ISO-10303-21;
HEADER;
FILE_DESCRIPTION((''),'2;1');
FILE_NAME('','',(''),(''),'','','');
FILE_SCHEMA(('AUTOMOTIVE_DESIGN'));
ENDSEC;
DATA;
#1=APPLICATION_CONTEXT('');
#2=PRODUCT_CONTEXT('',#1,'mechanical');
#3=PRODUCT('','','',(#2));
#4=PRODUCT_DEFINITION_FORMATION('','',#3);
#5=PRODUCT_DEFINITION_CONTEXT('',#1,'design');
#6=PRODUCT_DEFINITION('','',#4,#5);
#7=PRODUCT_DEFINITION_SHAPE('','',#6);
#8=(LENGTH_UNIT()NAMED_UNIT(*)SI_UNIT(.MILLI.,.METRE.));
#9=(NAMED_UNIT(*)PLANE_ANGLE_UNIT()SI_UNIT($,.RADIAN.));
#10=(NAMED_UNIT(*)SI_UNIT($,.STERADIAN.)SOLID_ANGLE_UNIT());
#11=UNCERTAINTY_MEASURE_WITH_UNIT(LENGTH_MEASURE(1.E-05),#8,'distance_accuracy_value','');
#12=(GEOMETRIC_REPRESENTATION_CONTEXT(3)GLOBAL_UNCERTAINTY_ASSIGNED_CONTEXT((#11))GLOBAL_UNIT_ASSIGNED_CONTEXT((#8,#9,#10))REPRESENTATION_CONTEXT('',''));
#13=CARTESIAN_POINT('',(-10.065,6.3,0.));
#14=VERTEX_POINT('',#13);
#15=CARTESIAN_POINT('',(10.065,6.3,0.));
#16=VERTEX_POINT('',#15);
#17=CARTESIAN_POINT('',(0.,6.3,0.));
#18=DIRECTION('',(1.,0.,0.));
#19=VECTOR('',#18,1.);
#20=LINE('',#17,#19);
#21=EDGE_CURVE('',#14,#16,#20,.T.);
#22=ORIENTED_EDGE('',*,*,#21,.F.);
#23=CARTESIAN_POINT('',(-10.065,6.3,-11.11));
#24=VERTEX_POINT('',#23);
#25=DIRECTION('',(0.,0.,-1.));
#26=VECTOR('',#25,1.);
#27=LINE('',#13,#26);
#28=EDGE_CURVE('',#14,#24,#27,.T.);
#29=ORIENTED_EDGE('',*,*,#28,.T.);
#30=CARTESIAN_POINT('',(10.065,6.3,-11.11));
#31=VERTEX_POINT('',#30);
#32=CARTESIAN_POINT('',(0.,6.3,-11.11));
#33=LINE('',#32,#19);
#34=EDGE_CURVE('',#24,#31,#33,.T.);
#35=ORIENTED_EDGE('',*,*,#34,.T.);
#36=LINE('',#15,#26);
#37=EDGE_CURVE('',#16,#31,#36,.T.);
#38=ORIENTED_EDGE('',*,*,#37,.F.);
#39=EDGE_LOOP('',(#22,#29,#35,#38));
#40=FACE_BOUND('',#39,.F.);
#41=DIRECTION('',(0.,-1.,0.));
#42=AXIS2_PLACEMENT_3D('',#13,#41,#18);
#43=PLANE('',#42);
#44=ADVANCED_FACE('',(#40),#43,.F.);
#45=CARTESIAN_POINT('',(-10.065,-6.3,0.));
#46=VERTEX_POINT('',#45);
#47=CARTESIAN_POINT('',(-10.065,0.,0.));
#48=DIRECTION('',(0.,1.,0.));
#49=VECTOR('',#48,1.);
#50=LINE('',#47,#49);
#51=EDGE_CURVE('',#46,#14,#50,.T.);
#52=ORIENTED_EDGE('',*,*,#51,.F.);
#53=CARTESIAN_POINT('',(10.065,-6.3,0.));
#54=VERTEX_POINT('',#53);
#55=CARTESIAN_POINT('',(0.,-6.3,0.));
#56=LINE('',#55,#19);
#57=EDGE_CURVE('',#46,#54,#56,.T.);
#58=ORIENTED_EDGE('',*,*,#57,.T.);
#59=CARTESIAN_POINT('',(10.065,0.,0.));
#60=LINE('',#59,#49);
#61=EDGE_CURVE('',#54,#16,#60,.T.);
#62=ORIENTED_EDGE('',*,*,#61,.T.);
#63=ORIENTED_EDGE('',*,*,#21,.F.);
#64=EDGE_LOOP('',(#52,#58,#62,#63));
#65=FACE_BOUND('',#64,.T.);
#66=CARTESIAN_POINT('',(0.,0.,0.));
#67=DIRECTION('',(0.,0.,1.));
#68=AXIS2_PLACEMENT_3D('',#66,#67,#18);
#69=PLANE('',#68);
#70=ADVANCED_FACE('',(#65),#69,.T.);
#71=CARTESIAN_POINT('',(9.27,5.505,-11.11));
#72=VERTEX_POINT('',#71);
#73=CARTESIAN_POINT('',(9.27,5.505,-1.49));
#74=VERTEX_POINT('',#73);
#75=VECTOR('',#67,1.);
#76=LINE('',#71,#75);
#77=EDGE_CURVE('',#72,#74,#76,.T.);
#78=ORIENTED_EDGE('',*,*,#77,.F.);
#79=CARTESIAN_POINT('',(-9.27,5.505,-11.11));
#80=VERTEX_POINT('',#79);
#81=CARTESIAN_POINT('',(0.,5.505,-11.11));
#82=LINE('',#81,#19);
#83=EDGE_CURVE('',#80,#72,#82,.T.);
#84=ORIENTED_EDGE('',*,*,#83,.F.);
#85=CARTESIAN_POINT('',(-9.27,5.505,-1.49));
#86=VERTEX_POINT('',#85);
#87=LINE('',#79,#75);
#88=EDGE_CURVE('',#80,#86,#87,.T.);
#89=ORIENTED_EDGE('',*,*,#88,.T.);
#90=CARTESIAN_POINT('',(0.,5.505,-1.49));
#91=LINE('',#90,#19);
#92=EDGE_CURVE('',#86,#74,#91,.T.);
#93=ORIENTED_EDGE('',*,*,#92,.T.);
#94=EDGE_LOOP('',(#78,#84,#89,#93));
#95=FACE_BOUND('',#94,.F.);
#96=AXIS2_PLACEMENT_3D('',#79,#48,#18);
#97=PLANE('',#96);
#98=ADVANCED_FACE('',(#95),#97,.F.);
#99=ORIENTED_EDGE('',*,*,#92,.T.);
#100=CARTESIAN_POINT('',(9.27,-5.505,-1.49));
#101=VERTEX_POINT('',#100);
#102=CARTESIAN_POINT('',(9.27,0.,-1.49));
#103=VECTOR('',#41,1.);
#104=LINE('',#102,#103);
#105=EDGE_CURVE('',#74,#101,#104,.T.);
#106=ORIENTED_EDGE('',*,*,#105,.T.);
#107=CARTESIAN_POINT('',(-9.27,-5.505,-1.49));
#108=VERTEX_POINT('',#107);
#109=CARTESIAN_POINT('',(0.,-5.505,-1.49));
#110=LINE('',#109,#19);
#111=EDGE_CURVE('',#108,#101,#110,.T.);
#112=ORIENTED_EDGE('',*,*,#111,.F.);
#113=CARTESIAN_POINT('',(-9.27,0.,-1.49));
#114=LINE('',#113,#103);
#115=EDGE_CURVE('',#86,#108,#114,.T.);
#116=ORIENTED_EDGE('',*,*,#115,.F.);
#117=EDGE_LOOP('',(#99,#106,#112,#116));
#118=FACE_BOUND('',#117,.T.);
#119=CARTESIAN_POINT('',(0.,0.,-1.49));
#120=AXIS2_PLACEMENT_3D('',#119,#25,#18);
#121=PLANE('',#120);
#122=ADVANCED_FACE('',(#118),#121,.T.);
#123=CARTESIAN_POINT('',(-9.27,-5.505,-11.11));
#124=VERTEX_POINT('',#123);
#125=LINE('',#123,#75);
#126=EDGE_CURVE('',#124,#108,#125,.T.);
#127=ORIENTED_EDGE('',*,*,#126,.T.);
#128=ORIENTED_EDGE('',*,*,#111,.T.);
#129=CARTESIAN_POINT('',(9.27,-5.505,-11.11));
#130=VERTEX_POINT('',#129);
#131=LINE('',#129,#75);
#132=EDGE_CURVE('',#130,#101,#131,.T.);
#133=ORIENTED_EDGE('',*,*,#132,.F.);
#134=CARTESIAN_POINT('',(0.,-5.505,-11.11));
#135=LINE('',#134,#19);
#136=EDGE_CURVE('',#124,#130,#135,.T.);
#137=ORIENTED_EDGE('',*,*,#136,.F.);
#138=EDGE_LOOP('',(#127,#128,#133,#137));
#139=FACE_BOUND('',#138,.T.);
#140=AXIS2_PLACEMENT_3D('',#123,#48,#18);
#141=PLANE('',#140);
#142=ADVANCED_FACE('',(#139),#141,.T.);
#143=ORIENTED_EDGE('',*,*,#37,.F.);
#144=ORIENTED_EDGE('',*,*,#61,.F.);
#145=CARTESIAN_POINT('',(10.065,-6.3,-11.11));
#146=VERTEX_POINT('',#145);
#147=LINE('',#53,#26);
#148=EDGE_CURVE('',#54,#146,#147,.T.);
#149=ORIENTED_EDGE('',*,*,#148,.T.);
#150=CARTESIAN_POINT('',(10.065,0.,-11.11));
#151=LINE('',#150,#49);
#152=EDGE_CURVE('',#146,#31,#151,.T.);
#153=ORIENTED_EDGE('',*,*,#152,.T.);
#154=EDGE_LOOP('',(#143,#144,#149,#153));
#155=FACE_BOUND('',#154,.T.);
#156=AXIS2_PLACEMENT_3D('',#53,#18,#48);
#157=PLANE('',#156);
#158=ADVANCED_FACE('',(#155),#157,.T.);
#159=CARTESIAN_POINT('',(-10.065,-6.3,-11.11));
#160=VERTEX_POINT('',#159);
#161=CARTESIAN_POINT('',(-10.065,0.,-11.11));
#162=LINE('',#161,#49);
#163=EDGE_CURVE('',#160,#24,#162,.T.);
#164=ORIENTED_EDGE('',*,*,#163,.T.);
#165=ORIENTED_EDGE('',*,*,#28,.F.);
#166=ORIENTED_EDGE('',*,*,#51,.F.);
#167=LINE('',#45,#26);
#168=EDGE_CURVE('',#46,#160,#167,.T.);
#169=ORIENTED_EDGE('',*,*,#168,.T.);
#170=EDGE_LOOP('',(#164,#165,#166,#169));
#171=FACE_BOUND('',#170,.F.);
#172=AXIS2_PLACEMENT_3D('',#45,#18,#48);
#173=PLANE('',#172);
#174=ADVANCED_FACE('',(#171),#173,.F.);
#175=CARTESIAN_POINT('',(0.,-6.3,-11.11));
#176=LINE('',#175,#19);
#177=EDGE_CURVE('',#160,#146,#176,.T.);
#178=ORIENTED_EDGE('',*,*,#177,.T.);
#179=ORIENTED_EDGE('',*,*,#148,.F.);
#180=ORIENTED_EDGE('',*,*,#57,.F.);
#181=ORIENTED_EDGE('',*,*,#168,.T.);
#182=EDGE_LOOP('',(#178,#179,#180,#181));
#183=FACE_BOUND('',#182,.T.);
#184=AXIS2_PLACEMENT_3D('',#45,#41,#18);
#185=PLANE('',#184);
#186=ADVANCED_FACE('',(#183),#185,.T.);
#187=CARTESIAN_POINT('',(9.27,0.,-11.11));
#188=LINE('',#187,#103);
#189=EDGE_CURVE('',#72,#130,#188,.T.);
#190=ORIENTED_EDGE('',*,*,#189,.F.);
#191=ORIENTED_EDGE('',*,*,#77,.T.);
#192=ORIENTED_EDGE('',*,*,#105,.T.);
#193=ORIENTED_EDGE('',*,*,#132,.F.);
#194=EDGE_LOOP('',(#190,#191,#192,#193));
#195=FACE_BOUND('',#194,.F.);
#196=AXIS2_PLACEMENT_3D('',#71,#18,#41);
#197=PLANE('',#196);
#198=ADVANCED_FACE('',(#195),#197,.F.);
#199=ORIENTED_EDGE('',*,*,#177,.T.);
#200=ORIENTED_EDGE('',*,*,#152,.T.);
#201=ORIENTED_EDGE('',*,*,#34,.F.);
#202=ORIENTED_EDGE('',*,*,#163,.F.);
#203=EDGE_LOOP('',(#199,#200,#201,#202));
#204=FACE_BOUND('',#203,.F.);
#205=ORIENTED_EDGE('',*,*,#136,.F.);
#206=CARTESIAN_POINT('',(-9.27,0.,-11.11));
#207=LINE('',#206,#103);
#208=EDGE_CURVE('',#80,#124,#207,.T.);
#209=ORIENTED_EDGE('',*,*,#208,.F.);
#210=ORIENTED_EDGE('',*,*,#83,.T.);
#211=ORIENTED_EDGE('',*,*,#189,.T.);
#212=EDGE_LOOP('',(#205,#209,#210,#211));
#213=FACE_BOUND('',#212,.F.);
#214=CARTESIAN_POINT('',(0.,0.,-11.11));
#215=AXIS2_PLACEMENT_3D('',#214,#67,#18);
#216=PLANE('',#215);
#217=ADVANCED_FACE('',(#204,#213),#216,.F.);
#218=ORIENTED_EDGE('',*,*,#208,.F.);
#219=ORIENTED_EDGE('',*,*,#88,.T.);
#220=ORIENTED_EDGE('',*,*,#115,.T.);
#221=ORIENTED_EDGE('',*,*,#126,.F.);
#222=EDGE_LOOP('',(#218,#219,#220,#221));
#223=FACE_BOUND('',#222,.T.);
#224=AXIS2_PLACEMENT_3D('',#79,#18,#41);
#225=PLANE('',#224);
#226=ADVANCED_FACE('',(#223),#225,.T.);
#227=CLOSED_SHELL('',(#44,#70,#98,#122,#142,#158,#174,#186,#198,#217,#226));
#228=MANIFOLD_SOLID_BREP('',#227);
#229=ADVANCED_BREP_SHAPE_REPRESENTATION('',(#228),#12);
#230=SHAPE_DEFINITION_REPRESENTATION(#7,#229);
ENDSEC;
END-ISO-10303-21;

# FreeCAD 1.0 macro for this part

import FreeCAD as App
import Part
import Sketcher
from FreeCAD import Vector
Q = App.Units.Quantity


def add_polygon(sketch, points):
    """Adds a closed chain of lines whose ends are joined by coincident constraints."""
    first, n = sketch.GeometryCount, len(points)
    for a, b in zip(points, points[1:] + points[:1]):
        sketch.addGeometry(Part.LineSegment(App.Vector(*a, 0), App.Vector(*b, 0)), False)
    for i in range(n):
        sketch.addConstraint(Sketcher.Constraint("Coincident", first + i, 2, first + (i + 1) % n, 1))

doc = App.newDocument("Part")
body = doc.addObject("PartDesign::Body", "Body")

sketch1 = doc.addObject("Sketcher::SketchObject", "Sketch")
body.addObject(sketch1)
sketch1.AttachmentSupport = (doc.XY_Plane, [""])
sketch1.MapMode = "FlatFace"
add_polygon(sketch1, [(-10, 6), (-10, -6), (10, -6), (10, 6)])
sketch1.addConstraint([
    Sketcher.Constraint("Vertical", 0),
    Sketcher.Constraint("Horizontal", 1),
    Sketcher.Constraint("Vertical", 2),
    Sketcher.Constraint("Horizontal", 3),
    Sketcher.Constraint("Symmetric", 0, 2, 2, 2, -1, 1),
    Sketcher.Constraint("DistanceY", 0, 2, 0, 1, Q("12.6 mm")),
    Sketcher.Constraint("DistanceX", 1, 1, 1, 2, Q("20.13 mm")),
])
pad1 = doc.addObject("PartDesign::Pad", "Pad")
body.addObject(pad1)
pad1.Profile = sketch1
pad1.Length = 11.11
pad1.Reversed = True

sketch2 = doc.addObject("Sketcher::SketchObject", "Sketch001")
body.addObject(sketch2)
sketch2.AttachmentSupport = (doc.XY_Plane, [""])
sketch2.MapMode = "FlatFace"
sketch2.AttachmentOffset = App.Placement(Vector(0, 0, -11.11), App.Rotation())
add_polygon(sketch2, [(-9, -6), (-9, 6), (9, 6), (9, -6)])
sketch2.addConstraint([
    Sketcher.Constraint("Vertical", 0),
    Sketcher.Constraint("Horizontal", 1),
    Sketcher.Constraint("Vertical", 2),
    Sketcher.Constraint("Horizontal", 3),
    Sketcher.Constraint("Symmetric", 0, 2, 2, 2, -1, 1),
    Sketcher.Constraint("DistanceX", 1, 1, 1, 2, Q("18.54 mm")),
    Sketcher.Constraint("DistanceY", 0, 1, 0, 2, Q("11.01 mm")),
])
pocket1 = doc.addObject("PartDesign::Pocket", "Pocket")
body.addObject(pocket1)
pocket1.Profile = sketch2
pocket1.Length = 9.62
pocket1.Reversed = True

doc.recompute()
